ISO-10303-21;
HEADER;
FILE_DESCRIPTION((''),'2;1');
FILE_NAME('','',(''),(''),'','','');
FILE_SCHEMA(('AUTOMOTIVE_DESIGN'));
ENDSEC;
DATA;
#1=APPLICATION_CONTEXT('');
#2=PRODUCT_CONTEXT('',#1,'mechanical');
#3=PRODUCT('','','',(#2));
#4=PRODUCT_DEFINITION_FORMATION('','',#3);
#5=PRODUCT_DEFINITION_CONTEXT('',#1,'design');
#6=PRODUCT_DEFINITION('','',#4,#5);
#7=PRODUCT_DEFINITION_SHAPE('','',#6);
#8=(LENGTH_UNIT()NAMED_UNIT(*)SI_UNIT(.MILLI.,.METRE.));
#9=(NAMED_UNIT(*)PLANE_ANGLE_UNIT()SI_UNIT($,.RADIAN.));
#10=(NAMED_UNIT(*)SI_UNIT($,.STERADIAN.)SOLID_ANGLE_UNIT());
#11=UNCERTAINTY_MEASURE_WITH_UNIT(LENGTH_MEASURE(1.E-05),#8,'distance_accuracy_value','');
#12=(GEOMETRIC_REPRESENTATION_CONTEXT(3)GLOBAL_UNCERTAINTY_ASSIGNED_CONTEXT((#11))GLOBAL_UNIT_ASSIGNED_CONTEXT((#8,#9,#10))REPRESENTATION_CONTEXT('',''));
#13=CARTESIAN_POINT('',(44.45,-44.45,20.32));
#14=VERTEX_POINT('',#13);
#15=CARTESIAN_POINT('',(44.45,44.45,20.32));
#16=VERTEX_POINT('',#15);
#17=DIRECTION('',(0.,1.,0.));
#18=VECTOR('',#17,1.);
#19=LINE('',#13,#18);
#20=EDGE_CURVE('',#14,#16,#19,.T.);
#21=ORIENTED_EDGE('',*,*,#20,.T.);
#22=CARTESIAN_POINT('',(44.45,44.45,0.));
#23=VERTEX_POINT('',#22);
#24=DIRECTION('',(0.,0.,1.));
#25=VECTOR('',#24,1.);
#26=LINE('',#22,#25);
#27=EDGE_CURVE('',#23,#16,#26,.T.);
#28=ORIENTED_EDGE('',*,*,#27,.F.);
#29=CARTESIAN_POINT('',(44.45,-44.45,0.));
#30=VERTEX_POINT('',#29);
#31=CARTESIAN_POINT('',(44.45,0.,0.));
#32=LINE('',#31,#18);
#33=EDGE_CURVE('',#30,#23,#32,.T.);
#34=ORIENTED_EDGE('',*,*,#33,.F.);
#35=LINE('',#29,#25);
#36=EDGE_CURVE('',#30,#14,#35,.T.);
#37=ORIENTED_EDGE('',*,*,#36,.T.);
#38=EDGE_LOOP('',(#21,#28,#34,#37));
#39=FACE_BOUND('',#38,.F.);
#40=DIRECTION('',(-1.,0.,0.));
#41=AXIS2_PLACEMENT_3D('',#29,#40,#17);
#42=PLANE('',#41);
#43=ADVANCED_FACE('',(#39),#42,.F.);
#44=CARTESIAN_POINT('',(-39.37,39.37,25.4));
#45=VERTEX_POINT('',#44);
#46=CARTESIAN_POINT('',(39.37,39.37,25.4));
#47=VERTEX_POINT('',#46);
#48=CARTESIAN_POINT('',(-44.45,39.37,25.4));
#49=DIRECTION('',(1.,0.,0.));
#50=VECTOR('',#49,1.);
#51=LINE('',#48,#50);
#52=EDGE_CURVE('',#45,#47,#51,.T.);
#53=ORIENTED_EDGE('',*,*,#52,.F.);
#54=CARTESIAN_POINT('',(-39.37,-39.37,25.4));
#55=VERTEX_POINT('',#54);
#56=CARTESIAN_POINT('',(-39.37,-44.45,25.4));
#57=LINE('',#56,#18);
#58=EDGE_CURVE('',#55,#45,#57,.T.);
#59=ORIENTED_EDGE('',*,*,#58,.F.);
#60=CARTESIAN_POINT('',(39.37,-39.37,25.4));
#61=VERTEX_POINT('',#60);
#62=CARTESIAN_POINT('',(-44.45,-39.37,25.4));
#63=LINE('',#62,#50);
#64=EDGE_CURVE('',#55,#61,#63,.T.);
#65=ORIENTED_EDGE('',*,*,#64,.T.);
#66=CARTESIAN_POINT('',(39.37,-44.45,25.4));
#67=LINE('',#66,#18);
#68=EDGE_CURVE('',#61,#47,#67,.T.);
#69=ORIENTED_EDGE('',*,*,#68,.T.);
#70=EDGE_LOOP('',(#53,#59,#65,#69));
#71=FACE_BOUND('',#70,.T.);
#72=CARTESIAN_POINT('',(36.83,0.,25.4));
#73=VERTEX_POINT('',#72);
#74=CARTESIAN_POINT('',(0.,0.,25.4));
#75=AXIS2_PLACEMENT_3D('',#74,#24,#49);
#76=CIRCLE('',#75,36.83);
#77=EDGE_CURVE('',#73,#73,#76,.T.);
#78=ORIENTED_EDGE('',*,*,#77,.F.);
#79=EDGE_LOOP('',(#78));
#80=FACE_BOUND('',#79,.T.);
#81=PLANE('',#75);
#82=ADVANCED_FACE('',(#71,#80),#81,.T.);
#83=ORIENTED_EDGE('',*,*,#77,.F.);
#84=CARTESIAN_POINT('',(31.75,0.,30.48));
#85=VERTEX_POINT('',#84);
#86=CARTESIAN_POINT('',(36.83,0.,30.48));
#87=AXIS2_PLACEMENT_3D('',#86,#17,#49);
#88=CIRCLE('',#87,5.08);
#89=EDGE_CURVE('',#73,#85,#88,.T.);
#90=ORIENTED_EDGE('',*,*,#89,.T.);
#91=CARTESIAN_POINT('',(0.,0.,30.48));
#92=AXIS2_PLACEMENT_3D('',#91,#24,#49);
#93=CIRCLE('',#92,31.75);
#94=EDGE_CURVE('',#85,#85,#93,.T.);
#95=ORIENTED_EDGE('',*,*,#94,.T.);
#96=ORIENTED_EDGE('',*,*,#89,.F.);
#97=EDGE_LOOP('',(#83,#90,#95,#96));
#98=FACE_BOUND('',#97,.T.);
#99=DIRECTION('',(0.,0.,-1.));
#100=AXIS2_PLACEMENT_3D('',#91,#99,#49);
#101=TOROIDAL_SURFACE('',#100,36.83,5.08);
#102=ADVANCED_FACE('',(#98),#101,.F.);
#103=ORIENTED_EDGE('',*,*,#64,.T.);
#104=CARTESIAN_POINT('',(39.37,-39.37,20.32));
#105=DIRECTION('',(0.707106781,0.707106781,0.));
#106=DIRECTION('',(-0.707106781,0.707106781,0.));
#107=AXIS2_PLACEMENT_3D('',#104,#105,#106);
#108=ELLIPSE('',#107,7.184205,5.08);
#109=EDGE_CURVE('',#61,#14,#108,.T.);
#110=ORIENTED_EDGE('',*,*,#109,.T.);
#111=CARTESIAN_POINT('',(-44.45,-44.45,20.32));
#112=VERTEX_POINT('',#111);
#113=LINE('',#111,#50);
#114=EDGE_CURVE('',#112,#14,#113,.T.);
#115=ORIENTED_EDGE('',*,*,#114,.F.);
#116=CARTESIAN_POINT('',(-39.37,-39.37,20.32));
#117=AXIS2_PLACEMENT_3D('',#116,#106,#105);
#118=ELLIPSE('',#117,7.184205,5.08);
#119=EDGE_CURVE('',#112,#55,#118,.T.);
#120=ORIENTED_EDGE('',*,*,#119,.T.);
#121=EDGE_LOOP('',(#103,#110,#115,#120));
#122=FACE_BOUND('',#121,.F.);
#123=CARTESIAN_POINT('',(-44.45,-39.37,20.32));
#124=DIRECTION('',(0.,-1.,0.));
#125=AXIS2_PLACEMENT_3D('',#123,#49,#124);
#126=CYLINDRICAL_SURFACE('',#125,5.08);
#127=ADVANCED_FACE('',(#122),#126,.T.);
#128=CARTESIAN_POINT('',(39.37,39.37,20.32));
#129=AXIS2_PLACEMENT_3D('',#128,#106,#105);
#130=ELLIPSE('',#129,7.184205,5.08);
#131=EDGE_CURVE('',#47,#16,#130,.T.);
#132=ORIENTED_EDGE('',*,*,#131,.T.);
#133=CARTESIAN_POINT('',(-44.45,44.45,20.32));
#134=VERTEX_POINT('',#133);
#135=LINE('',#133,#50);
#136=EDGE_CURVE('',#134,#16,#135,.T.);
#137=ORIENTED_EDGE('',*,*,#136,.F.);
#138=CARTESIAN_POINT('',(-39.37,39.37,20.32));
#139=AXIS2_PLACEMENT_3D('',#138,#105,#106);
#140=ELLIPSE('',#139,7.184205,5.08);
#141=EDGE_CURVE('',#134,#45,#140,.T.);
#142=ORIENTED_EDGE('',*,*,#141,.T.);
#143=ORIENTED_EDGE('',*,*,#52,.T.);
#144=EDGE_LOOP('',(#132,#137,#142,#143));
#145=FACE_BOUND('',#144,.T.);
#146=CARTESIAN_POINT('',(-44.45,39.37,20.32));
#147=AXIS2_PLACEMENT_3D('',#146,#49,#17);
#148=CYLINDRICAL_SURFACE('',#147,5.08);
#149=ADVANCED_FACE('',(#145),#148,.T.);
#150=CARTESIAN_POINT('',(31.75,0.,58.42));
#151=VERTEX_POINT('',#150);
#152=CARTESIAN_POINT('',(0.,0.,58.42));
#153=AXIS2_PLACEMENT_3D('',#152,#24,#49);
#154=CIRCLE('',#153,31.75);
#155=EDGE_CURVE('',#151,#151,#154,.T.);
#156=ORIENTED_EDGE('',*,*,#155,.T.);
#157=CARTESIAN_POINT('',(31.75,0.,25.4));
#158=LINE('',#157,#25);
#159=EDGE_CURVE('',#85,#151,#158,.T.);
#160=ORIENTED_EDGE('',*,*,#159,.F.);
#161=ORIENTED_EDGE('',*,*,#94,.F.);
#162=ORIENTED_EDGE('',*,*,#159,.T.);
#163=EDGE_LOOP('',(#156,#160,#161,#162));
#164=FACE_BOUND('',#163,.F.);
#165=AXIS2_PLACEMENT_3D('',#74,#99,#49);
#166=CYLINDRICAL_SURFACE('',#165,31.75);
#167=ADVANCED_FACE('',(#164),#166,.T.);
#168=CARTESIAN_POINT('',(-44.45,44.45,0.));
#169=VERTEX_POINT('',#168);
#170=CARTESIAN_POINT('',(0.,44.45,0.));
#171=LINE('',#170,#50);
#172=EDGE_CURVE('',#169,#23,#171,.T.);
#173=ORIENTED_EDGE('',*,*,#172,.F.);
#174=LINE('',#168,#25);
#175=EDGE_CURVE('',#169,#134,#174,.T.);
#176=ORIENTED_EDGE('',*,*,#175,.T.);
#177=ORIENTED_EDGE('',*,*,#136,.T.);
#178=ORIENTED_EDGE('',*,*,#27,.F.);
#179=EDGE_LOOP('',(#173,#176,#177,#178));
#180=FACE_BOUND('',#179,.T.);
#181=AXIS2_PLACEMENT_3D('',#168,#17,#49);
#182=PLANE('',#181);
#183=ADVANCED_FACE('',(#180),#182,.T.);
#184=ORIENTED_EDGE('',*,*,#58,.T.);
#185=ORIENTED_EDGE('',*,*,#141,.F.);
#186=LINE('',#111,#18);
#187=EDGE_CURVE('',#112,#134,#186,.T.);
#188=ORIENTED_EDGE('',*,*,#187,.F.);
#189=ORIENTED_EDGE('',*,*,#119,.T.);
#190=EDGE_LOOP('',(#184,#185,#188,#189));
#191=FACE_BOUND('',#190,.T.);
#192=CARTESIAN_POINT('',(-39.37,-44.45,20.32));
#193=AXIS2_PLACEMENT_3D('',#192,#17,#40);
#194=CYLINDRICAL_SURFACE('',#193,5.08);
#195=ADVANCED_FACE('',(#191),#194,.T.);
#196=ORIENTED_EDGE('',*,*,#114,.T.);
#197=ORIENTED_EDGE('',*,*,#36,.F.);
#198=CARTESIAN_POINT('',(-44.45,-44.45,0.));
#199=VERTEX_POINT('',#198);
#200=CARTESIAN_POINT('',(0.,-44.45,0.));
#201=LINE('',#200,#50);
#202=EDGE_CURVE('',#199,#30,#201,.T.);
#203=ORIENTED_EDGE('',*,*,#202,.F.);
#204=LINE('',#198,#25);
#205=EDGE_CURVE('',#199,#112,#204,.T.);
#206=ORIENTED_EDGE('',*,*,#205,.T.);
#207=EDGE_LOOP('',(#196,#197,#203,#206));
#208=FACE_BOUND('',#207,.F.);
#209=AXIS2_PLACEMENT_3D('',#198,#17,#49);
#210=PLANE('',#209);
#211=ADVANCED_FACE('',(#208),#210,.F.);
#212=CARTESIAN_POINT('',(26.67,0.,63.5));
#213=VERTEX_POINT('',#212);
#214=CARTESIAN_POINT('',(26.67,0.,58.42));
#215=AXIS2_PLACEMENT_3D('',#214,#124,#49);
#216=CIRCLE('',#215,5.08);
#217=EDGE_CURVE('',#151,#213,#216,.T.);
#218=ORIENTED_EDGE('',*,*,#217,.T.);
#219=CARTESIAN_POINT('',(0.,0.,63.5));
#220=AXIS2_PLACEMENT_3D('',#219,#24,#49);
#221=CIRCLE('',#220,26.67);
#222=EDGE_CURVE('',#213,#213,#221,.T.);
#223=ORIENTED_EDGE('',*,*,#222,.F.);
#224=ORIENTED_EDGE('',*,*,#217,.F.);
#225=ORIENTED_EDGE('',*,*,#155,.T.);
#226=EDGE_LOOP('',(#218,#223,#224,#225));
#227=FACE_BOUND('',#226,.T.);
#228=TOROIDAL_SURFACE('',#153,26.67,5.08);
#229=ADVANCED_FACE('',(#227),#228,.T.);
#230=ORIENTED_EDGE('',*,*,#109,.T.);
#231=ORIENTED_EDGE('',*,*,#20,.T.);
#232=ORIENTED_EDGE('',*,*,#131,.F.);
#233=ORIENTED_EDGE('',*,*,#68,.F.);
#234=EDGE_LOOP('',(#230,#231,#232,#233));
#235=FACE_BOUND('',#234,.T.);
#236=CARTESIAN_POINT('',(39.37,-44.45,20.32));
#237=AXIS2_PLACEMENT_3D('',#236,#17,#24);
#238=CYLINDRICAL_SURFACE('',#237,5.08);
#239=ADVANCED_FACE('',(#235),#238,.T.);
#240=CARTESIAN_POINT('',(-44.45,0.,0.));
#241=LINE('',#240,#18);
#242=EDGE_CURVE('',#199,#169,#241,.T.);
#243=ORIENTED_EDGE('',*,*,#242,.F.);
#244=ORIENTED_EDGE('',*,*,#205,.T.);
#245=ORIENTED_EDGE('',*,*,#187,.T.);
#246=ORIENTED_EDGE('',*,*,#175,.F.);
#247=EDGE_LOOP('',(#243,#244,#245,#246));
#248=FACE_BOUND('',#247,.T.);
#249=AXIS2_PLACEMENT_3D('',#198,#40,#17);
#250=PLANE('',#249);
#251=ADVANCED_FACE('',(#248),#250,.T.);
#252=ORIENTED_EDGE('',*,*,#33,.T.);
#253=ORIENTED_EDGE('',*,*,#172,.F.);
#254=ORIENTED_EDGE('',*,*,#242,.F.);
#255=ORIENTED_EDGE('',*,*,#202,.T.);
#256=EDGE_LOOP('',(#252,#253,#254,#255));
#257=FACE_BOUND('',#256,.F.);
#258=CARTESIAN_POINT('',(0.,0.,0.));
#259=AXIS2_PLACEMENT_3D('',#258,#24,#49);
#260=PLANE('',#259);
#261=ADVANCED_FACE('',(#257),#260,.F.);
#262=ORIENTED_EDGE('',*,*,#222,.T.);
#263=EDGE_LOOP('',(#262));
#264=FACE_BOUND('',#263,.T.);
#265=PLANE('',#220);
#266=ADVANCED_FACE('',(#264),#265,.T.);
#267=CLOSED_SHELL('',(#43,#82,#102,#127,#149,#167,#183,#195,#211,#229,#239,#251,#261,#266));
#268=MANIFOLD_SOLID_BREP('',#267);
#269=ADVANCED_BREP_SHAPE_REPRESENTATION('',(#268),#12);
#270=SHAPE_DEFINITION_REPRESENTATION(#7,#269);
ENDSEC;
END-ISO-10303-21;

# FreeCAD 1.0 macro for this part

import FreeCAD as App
import Part
import Sketcher
Q = App.Units.Quantity


def edges_at(feature, points):
    """Names of the edges that pass closest to the given points."""
    edges = feature.Shape.Edges
    near = lambda p: min(range(len(edges)), key=lambda i: edges[i].distToShape(Part.Vertex(*p))[0])
    return sorted({f"Edge{near(p) + 1}" for p in points})


def add_polygon(sketch, points):
    """Adds a closed chain of lines whose ends are joined by coincident constraints."""
    first, n = sketch.GeometryCount, len(points)
    for a, b in zip(points, points[1:] + points[:1]):
        sketch.addGeometry(Part.LineSegment(App.Vector(*a, 0), App.Vector(*b, 0)), False)
    for i in range(n):
        sketch.addConstraint(Sketcher.Constraint("Coincident", first + i, 2, first + (i + 1) % n, 1))

doc = App.newDocument("Part")
params = doc.addObject("Spreadsheet::Sheet", "Params")
for row, (alias, value) in enumerate([
    ("sketch1_width", "3.5 in"),
    ("pad1_length", "1 in"),
    ("sketch2_diameter", "2.5 in"),
    ("pad2_length", "1.5 in"),
    ("fillet_radius", "0.2 in"),
], start=1):
    params.set(f"A{row}", alias)
    params.set(f"B{row}", "=" + value)
    params.setAlias(f"B{row}", alias)

body = doc.addObject("PartDesign::Body", "Body")

sketch1 = doc.addObject("Sketcher::SketchObject", "Sketch")
body.addObject(sketch1)
sketch1.AttachmentSupport = (doc.XY_Plane, [""])
sketch1.MapMode = "FlatFace"
add_polygon(sketch1, [(-44, 44), (-44, -44), (44, -44), (44, 44)])
sketch1.addConstraint([
    Sketcher.Constraint("Vertical", 0),
    Sketcher.Constraint("Horizontal", 1),
    Sketcher.Constraint("Vertical", 2),
    Sketcher.Constraint("Horizontal", 3),
    Sketcher.Constraint("Symmetric", 0, 2, 2, 2, -1, 1),
    Sketcher.Constraint("Equal", 3, 0),
    Sketcher.Constraint("DistanceX", 1, 1, 1, 2, Q("3.5 in")),
])
sketch1.setExpression("Constraints[10]", "Params.sketch1_width")
pad1 = doc.addObject("PartDesign::Pad", "Pad")
body.addObject(pad1)
pad1.Profile = sketch1
pad1.setExpression("Length", "Params.pad1_length")

sketch2 = doc.addObject("Sketcher::SketchObject", "Sketch001")
body.addObject(sketch2)
sketch2.AttachmentSupport = (doc.XY_Plane, [""])
sketch2.MapMode = "FlatFace"
sketch2.AttachmentOffset = App.Placement(App.Vector(0, 0, 1 * 25.4), App.Rotation())
sketch2.addGeometry(Part.Circle(App.Vector(0, 0, 0), App.Vector(0, 0, 1), 32), False)
sketch2.addConstraint([
    Sketcher.Constraint("Coincident", 0, 3, -1, 1),
    Sketcher.Constraint("Diameter", 0, Q("2.5 in")),
])
sketch2.setExpression("Constraints[1]", "Params.sketch2_diameter")
pad2 = doc.addObject("PartDesign::Pad", "Pad001")
body.addObject(pad2)
pad2.Profile = sketch2
pad2.setExpression("Length", "Params.pad2_length")
doc.recompute()

fillet = doc.addObject("PartDesign::Fillet", "Fillet")
body.addObject(fillet)
fillet.Base = (pad2, edges_at(pad2, [
    (-31.75, 0, 63.5),
    (-31.75, 0, 25.4),
    (44.45, 0, 25.4),
    (0, -44.45, 25.4),
    (-44.45, 0, 25.4),
    (0, 44.45, 25.4),
]))
fillet.setExpression("Radius", "Params.fillet_radius")

doc.recompute()
